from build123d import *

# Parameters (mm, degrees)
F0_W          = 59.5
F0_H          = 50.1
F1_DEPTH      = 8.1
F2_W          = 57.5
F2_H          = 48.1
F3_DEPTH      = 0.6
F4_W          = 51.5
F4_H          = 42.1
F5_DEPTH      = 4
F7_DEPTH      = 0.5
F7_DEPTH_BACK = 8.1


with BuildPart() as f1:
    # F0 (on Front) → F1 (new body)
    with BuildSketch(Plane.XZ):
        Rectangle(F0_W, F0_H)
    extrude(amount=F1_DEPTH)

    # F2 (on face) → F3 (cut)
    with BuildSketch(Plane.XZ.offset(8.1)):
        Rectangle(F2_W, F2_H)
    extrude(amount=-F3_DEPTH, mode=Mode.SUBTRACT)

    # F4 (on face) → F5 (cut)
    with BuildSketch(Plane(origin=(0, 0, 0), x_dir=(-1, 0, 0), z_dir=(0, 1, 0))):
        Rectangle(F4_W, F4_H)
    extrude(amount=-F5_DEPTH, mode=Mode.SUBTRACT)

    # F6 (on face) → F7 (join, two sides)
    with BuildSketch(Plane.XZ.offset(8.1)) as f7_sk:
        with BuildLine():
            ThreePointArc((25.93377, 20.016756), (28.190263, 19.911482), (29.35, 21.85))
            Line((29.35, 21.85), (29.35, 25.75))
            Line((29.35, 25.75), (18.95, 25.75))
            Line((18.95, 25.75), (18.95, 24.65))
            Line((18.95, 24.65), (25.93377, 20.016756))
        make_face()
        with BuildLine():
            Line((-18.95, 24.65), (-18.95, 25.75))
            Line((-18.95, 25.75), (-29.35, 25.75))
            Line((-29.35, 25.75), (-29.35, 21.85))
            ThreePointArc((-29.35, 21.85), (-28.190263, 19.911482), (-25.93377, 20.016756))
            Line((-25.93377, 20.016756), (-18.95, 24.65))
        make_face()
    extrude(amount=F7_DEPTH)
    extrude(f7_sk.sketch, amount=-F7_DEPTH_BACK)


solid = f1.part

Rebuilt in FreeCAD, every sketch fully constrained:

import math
import FreeCAD as App
import Part
import Sketcher
from FreeCAD import Vector


def add_polygon(sketch, points):
    """Adds a closed chain of lines whose ends are joined by coincident constraints."""
    first, n = sketch.GeometryCount, len(points)
    for a, b in zip(points, points[1:] + points[:1]):
        sketch.addGeometry(Part.LineSegment(App.Vector(*a, 0), App.Vector(*b, 0)), False)
    for i in range(n):
        sketch.addConstraint(Sketcher.Constraint("Coincident", first + i, 2, first + (i + 1) % n, 1))

doc = App.newDocument("Part")
body = doc.addObject("PartDesign::Body", "Body")

sketch1 = body.newObject("Sketcher::SketchObject", "Sketch")
sketch1.AttachmentSupport = (doc.getObject("XZ_Plane"), [""])
sketch1.MapMode = "FlatFace"
add_polygon(sketch1, [(-30, 25), (-30, -25), (30, -25), (30, 25)])
sketch1.addConstraint([
    Sketcher.Constraint("Vertical", 0),
    Sketcher.Constraint("Horizontal", 1),
    Sketcher.Constraint("Vertical", 2),
    Sketcher.Constraint("Horizontal", 3),
    Sketcher.Constraint("Symmetric", 0, 2, 2, 2, -1, 1),
    Sketcher.Constraint("DistanceX", 1, 1, 1, 2, 59.5),
    Sketcher.Constraint("DistanceY", 0, 2, 0, 1, 50.1),
])
pad1 = body.newObject("PartDesign::Pad", "Pad")
pad1.Profile = sketch1
pad1.Length = 8.1

sketch2 = body.newObject("Sketcher::SketchObject", "Sketch001")
sketch2.AttachmentSupport = (doc.getObject("XZ_Plane"), [""])
sketch2.MapMode = "FlatFace"
sketch2.AttachmentOffset = App.Placement(Vector(0, 0, 8.1), App.Rotation())
add_polygon(sketch2, [(-29, 24), (-29, -24), (29, -24), (29, 24)])
sketch2.addConstraint([
    Sketcher.Constraint("Vertical", 0),
    Sketcher.Constraint("Horizontal", 1),
    Sketcher.Constraint("Vertical", 2),
    Sketcher.Constraint("Horizontal", 3),
    Sketcher.Constraint("Symmetric", 0, 2, 2, 2, -1, 1),
    Sketcher.Constraint("DistanceX", 1, 1, 1, 2, 57.5),
    Sketcher.Constraint("DistanceY", 0, 2, 0, 1, 48.1),
])
pocket1 = body.newObject("PartDesign::Pocket", "Pocket")
pocket1.Profile = sketch2
pocket1.Length = 0.6

sketch3 = body.newObject("Sketcher::SketchObject", "Sketch002")
sketch3.AttachmentSupport = (doc.getObject("XZ_Plane"), [""])
sketch3.MapMode = "FlatFace"
add_polygon(sketch3, [(26, 21), (26, -21), (-26, -21), (-26, 21)])
sketch3.addConstraint([
    Sketcher.Constraint("Vertical", 0),
    Sketcher.Constraint("Horizontal", 1),
    Sketcher.Constraint("Vertical", 2),
    Sketcher.Constraint("Horizontal", 3),
    Sketcher.Constraint("Symmetric", 0, 2, 2, 2, -1, 1),
    Sketcher.Constraint("DistanceX", 1, 2, 1, 1, 51.5),
    Sketcher.Constraint("DistanceY", 0, 2, 0, 1, 42.1),
])
pocket2 = body.newObject("PartDesign::Pocket", "Pocket001")
pocket2.Profile = sketch3
pocket2.Length = 4
pocket2.Reversed = True

sketch4 = body.newObject("Sketcher::SketchObject", "Sketch003")
sketch4.AttachmentSupport = (doc.getObject("XZ_Plane"), [""])
sketch4.MapMode = "FlatFace"
sketch4.AttachmentOffset = App.Placement(Vector(0, 0, 8.1), App.Rotation())
sketch4.addGeometry([
    Part.ArcOfCircle(Part.Circle(Vector(27.2, 21.9, 0), Vector(0, 0, 1), 2.2), math.radians(-124), math.radians(0)),
    Part.LineSegment(Vector(29.4, 21.9, 0), Vector(29.4, 25.8, 0)),
    Part.LineSegment(Vector(29.4, 25.8, 0), Vector(18.9, 25.8, 0)),
    Part.LineSegment(Vector(18.9, 25.8, 0), Vector(18.9, 24.6, 0)),
    Part.LineSegment(Vector(18.9, 24.6, 0), Vector(25.9, 20, 0)),
    Part.LineSegment(Vector(-18.9, 24.6, 0), Vector(-18.9, 25.8, 0)),
    Part.LineSegment(Vector(-18.9, 25.8, 0), Vector(-29.4, 25.8, 0)),
    Part.LineSegment(Vector(-29.4, 25.8, 0), Vector(-29.4, 21.9, 0)),
    Part.ArcOfCircle(Part.Circle(Vector(-27.2, 21.9, 0), Vector(0, 0, 1), 2.2), math.radians(-180), math.radians(-56)),
    Part.LineSegment(Vector(-25.9, 20, 0), Vector(-18.9, 24.6, 0)),
], False)
sketch4.addConstraint([
    Sketcher.Constraint("Tangent", 0, 2, 1, 1),
    Sketcher.Constraint("Coincident", 1, 2, 2, 1),
    Sketcher.Constraint("Coincident", 2, 2, 3, 1),
    Sketcher.Constraint("Coincident", 3, 2, 4, 1),
    Sketcher.Constraint("Tangent", 4, 2, 0, 1),
    Sketcher.Constraint("Coincident", 5, 2, 6, 1),
    Sketcher.Constraint("Coincident", 6, 2, 7, 1),
    Sketcher.Constraint("Tangent", 7, 2, 8, 1),
    Sketcher.Constraint("Tangent", 8, 2, 9, 1),
    Sketcher.Constraint("Coincident", 9, 2, 5, 1),
    Sketcher.Constraint("Vertical", 1),
    Sketcher.Constraint("Horizontal", 2),
    Sketcher.Constraint("Vertical", 3),
    Sketcher.Constraint("Vertical", 5),
    Sketcher.Constraint("Horizontal", 6),
    Sketcher.Constraint("Vertical", 7),
    Sketcher.Constraint("Equal", 0, 8),
    Sketcher.Constraint("Symmetric", 0, 3, 8, 3, -2),
    Sketcher.Constraint("Symmetric", 2, 2, 5, 2, -2),
    Sketcher.Constraint("Horizontal", 4, 2, 8, 2),
    Sketcher.Constraint("Radius", 0, 2.2),
    Sketcher.Constraint("DistanceX", 2, 2, 2, 1, 10.4),
    Sketcher.Constraint("DistanceY", 1, 1, 1, 2, 3.9),
    Sketcher.Constraint("DistanceY", 3, 2, 3, 1, 1.1),
    Sketcher.Constraint("DistanceX", 8, 3, 0, 3, 54.3),
    Sketcher.Constraint("DistanceY", -1, 1, 0, 3, 21.85),
])
pad2 = body.newObject("PartDesign::Pad", "Pad001")
pad2.Profile = sketch4
pad2.Type = "TwoLengths"
pad2.Length = 0.5
pad2.Length2 = 8.1

doc.recompute()
